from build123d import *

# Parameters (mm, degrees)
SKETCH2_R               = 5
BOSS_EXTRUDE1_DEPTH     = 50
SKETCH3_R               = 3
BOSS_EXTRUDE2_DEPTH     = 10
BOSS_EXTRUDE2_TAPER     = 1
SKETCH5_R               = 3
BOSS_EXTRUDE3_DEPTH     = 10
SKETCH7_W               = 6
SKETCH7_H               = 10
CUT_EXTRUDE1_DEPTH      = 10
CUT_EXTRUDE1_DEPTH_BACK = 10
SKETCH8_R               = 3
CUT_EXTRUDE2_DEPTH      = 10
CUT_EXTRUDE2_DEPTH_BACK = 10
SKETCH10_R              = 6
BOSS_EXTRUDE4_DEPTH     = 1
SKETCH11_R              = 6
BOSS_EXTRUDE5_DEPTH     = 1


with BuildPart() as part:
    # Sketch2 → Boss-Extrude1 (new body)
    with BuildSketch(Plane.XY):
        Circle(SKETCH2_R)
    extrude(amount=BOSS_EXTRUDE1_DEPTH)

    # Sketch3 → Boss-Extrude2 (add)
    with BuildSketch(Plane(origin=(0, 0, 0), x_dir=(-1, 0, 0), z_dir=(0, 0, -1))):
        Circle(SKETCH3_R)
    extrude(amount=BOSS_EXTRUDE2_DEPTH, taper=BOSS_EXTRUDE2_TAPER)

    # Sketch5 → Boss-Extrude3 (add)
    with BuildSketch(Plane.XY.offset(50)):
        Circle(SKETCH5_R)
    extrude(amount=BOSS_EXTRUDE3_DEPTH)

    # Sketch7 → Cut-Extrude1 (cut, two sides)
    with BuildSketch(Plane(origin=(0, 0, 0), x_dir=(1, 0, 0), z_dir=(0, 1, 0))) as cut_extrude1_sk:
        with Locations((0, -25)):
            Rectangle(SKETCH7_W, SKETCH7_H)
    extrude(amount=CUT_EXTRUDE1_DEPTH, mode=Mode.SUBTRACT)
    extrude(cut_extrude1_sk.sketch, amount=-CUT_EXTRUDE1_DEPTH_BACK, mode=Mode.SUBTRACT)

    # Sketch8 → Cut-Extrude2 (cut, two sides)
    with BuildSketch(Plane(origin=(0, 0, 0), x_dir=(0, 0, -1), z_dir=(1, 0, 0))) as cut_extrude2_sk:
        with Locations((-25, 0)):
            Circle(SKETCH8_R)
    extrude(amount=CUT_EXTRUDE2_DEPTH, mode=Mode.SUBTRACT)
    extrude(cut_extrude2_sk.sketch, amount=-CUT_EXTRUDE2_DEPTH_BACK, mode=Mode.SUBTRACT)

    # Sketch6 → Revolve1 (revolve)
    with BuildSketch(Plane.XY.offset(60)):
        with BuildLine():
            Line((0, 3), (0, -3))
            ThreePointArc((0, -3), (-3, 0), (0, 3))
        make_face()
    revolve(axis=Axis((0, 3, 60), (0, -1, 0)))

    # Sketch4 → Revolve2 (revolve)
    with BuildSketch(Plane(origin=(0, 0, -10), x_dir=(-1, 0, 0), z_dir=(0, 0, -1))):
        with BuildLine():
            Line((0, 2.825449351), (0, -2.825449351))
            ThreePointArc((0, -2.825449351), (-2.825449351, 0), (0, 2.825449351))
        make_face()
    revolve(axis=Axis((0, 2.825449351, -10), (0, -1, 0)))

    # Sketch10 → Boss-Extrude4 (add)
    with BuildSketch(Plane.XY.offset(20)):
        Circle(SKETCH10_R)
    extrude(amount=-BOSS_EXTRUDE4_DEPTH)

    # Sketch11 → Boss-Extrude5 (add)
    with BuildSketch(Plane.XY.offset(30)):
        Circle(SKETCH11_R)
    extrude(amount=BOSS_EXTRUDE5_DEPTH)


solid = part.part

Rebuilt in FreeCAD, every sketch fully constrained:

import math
import FreeCAD as App
import Part
import Sketcher


def add_polygon(sketch, points):
    """Adds a closed chain of lines whose ends are joined by coincident constraints."""
    first, n = sketch.GeometryCount, len(points)
    for a, b in zip(points, points[1:] + points[:1]):
        sketch.addGeometry(Part.LineSegment(App.Vector(*a, 0), App.Vector(*b, 0)), False)
    for i in range(n):
        sketch.addConstraint(Sketcher.Constraint("Coincident", first + i, 2, first + (i + 1) % n, 1))

doc = App.newDocument("Part")
params = doc.addObject("Spreadsheet::Sheet", "Params")
for row, (alias, value) in enumerate([
    ("sketch1_diameter", "10 mm"),
    ("pad1_length", "50 mm"),
    ("sketch2_diameter", "6 mm"),
    ("pad2_length", "10 mm"),
    ("pad2_taper", "-1 deg"),
    ("sketch3_diameter", "6 mm"),
    ("pad3_length", "10 mm"),
    ("sketch4_width", "6 mm"),
    ("sketch4_height", "10 mm"),
    ("sketch5_diameter", "6 mm"),
    ("sketch6_radius", "3 mm"),
    ("revolution_angle", "360 deg"),
    ("revolution2_angle", "360 deg"),
    ("sketch8_diameter", "12 mm"),
    ("pad4_length", "1 mm"),
    ("sketch9_diameter", "12 mm"),
    ("pad5_length", "1 mm"),
], start=1):
    params.set(f"A{row}", alias)
    params.set(f"B{row}", "=" + value)
    params.setAlias(f"B{row}", alias)

body = doc.addObject("PartDesign::Body", "Body")

# Sketch on XY plane
sketch1 = body.newObject("Sketcher::SketchObject", "Sketch")
sketch1.AttachmentSupport = (doc.getObject("XY_Plane"), [""])
sketch1.MapMode = "FlatFace"
sketch1.addGeometry(Part.Circle(App.Vector(0, 0, 0), App.Vector(0, 0, 1), 5), False)
sketch1.addConstraint([
    Sketcher.Constraint("Coincident", 0, 3, -1, 1),
    Sketcher.Constraint("Diameter", 0, 10.0),
])
sketch1.setExpression("Constraints[1]", "Params.sketch1_diameter")
pad1 = body.newObject("PartDesign::Pad", "Pad")
pad1.Profile = sketch1
pad1.setExpression("Length", "Params.pad1_length")

# Sketch on XY plane
sketch2 = body.newObject("Sketcher::SketchObject", "Sketch001")
sketch2.AttachmentSupport = (doc.getObject("XY_Plane"), [""])
sketch2.MapMode = "FlatFace"
sketch2.addGeometry(Part.Circle(App.Vector(0, 0, 0), App.Vector(0, 0, 1), 3), False)
sketch2.addConstraint([
    Sketcher.Constraint("Coincident", 0, 3, -1, 1),
    Sketcher.Constraint("Diameter", 0, 6.0),
])
sketch2.setExpression("Constraints[1]", "Params.sketch2_diameter")
pad2 = body.newObject("PartDesign::Pad", "Pad001")
pad2.Profile = sketch2
pad2.setExpression("Length", "Params.pad2_length")
pad2.Reversed = True
pad2.setExpression("TaperAngle", "Params.pad2_taper")

# Sketch on XY plane
sketch3 = body.newObject("Sketcher::SketchObject", "Sketch002")
sketch3.AttachmentSupport = (doc.getObject("XY_Plane"), [""])
sketch3.MapMode = "FlatFace"
sketch3.AttachmentOffset = App.Placement(App.Vector(0, 0, 50), App.Rotation())
sketch3.addGeometry(Part.Circle(App.Vector(0, 0, 0), App.Vector(0, 0, 1), 3), False)
sketch3.addConstraint([
    Sketcher.Constraint("Coincident", 0, 3, -1, 1),
    Sketcher.Constraint("Diameter", 0, 6.0),
])
sketch3.setExpression("Constraints[1]", "Params.sketch3_diameter")
pad3 = body.newObject("PartDesign::Pad", "Pad002")
pad3.Profile = sketch3
pad3.setExpression("Length", "Params.pad3_length")

# Sketch on XZ plane
sketch4 = body.newObject("Sketcher::SketchObject", "Sketch003")
sketch4.AttachmentSupport = (doc.getObject("XZ_Plane"), [""])
sketch4.MapMode = "FlatFace"
add_polygon(sketch4, [(-3, 20), (-3, 30), (3, 30), (3, 20)])  # lines 0-3
sketch4.addConstraint([
    Sketcher.Constraint("Vertical", 0),
    Sketcher.Constraint("Horizontal", 1),
    Sketcher.Constraint("Vertical", 2),
    Sketcher.Constraint("Horizontal", 3),
    Sketcher.Constraint("DistanceX", 1, 1, 1, 2, 6.0),
    Sketcher.Constraint("DistanceY", 0, 1, 0, 2, 10.0),
    Sketcher.Constraint("DistanceX", 0, 2, -1, 1, 3.0),
    Sketcher.Constraint("DistanceY", -1, 1, 0, 2, 30.0),
])
sketch4.setExpression("Constraints[8]", "Params.sketch4_width")
sketch4.setExpression("Constraints[9]", "Params.sketch4_height")
pocket1 = body.newObject("PartDesign::Pocket", "Pocket")
pocket1.Profile = sketch4
pocket1.Type = "ThroughAll"
pocket1.Midplane = True

# Sketch on YZ plane
sketch5 = body.newObject("Sketcher::SketchObject", "Sketch004")
sketch5.AttachmentSupport = (doc.getObject("YZ_Plane"), [""])
sketch5.MapMode = "FlatFace"
sketch5.addGeometry(Part.Circle(App.Vector(0, 25, 0), App.Vector(0, 0, 1), 3), False)
sketch5.addConstraint([
    Sketcher.Constraint("PointOnObject", 0, 3, -2),
    Sketcher.Constraint("Diameter", 0, 6.0),
    Sketcher.Constraint("DistanceY", -1, 1, 0, 3, 25.0),
])
sketch5.setExpression("Constraints[1]", "Params.sketch5_diameter")
pocket2 = body.newObject("PartDesign::Pocket", "Pocket001")
pocket2.Profile = sketch5
pocket2.Type = "ThroughAll"
pocket2.Midplane = True

# Sketch on XY plane
sketch6 = body.newObject("Sketcher::SketchObject", "Sketch005")
sketch6.AttachmentSupport = (doc.getObject("XY_Plane"), [""])
sketch6.MapMode = "FlatFace"
sketch6.AttachmentOffset = App.Placement(App.Vector(0, 0, 60), App.Rotation())
sketch6.addGeometry([
    Part.LineSegment(App.Vector(0, -3, 0), App.Vector(0, 3, 0)),
    Part.ArcOfCircle(Part.Circle(App.Vector(0, 0, 0), App.Vector(0, 0, 1), 3), math.radians(90), math.radians(270)),
], False)
sketch6.addConstraint([
    Sketcher.Constraint("Coincident", 0, 1, 1, 2),
    Sketcher.Constraint("Coincident", 1, 1, 0, 2),
    Sketcher.Constraint("Vertical", 0),
    Sketcher.Constraint("Coincident", 1, 3, -1, 1),
    Sketcher.Constraint("PointOnObject", 0, 1, -2),
    Sketcher.Constraint("Radius", 1, 3.0),
])
sketch6.setExpression("Constraints[5]", "Params.sketch6_radius")
revolution = body.newObject("PartDesign::Revolution", "Revolution")
revolution.Profile = sketch6
revolution.ReferenceAxis = (sketch6, ["V_Axis"])
revolution.setExpression("Angle", "Params.revolution_angle")

# Sketch on XY plane
sketch7 = body.newObject("Sketcher::SketchObject", "Sketch006")
sketch7.AttachmentSupport = (doc.getObject("XY_Plane"), [""])
sketch7.MapMode = "FlatFace"
sketch7.AttachmentOffset = App.Placement(App.Vector(0, 0, -10), App.Rotation())
sketch7.addGeometry([
    Part.LineSegment(App.Vector(0, -2.8, 0), App.Vector(0, 2.8, 0)),
    Part.ArcOfCircle(Part.Circle(App.Vector(0, 0, 0), App.Vector(0, 0, 1), 2.8), math.radians(-90), math.radians(90)),
], False)
sketch7.addConstraint([
    Sketcher.Constraint("Coincident", 0, 1, 1, 1),
    Sketcher.Constraint("Coincident", 1, 2, 0, 2),
    Sketcher.Constraint("Vertical", 0),
    Sketcher.Constraint("Coincident", 1, 3, -1, 1),
    Sketcher.Constraint("PointOnObject", 0, 1, -2),
    Sketcher.Constraint("Radius", 1, 2.825449),
])
revolution2 = body.newObject("PartDesign::Revolution", "Revolution001")
revolution2.Profile = sketch7
revolution2.ReferenceAxis = (sketch7, ["V_Axis"])
revolution2.setExpression("Angle", "Params.revolution2_angle")

# Sketch on XY plane
sketch8 = body.newObject("Sketcher::SketchObject", "Sketch007")
sketch8.AttachmentSupport = (doc.getObject("XY_Plane"), [""])
sketch8.MapMode = "FlatFace"
sketch8.AttachmentOffset = App.Placement(App.Vector(0, 0, 20), App.Rotation())
sketch8.addGeometry(Part.Circle(App.Vector(0, 0, 0), App.Vector(0, 0, 1), 6), False)
sketch8.addConstraint([
    Sketcher.Constraint("Coincident", 0, 3, -1, 1),
    Sketcher.Constraint("Diameter", 0, 12.0),
])
sketch8.setExpression("Constraints[1]", "Params.sketch8_diameter")
pad4 = body.newObject("PartDesign::Pad", "Pad003")
pad4.Profile = sketch8
pad4.setExpression("Length", "Params.pad4_length")
pad4.Reversed = True

# Sketch on XY plane
sketch9 = body.newObject("Sketcher::SketchObject", "Sketch008")
sketch9.AttachmentSupport = (doc.getObject("XY_Plane"), [""])
sketch9.MapMode = "FlatFace"
sketch9.AttachmentOffset = App.Placement(App.Vector(0, 0, 30), App.Rotation())
sketch9.addGeometry(Part.Circle(App.Vector(0, 0, 0), App.Vector(0, 0, 1), 6), False)
sketch9.addConstraint([
    Sketcher.Constraint("Coincident", 0, 3, -1, 1),
    Sketcher.Constraint("Diameter", 0, 12.0),
])
sketch9.setExpression("Constraints[1]", "Params.sketch9_diameter")
pad5 = body.newObject("PartDesign::Pad", "Pad004")
pad5.Profile = sketch9
pad5.setExpression("Length", "Params.pad5_length")

doc.recompute()
